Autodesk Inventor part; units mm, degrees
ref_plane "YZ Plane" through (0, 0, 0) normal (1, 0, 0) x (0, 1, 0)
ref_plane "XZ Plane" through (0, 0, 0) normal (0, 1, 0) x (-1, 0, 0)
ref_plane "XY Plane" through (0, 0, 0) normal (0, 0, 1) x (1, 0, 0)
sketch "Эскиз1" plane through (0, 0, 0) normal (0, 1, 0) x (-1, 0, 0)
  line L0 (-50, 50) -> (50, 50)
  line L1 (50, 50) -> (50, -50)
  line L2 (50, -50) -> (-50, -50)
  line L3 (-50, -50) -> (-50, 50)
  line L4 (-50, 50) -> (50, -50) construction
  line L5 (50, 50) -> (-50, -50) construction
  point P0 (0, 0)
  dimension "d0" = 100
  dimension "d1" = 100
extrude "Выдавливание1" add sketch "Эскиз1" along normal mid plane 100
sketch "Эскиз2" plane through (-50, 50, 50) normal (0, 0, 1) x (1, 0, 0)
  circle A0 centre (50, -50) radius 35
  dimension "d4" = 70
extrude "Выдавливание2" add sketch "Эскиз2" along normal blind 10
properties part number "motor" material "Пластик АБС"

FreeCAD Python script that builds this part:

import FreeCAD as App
import Part
import Sketcher
from FreeCAD import Vector
Q = App.Units.Quantity

doc = App.newDocument("Part")
body = doc.addObject("PartDesign::Body", "Body")

# Sketch on XZ plane
sketch1 = body.newObject("Sketcher::SketchObject", "Sketch")
sketch1.AttachmentSupport = (doc.getObject("XZ_Plane"), [""])
sketch1.MapMode = "FlatFace"
sketch1.addGeometry(Part.LineSegment(Vector(-50, 50, 0), Vector(50, 50, 0)), False)
sketch1.addGeometry(Part.LineSegment(Vector(50, 50, 0), Vector(50, -50, 0)), False)
sketch1.addGeometry(Part.LineSegment(Vector(50, -50, 0), Vector(-50, -50, 0)), False)
sketch1.addGeometry(Part.LineSegment(Vector(-50, -50, 0), Vector(-50, 50, 0)), False)
sketch1.addConstraint(Sketcher.Constraint("Coincident", 0, 2, 1, 1))
sketch1.addConstraint(Sketcher.Constraint("Coincident", 1, 2, 2, 1))
sketch1.addConstraint(Sketcher.Constraint("Coincident", 2, 2, 3, 1))
sketch1.addConstraint(Sketcher.Constraint("Coincident", 3, 2, 0, 1))
sketch1.addConstraint(Sketcher.Constraint("Horizontal", 0))
sketch1.addConstraint(Sketcher.Constraint("Vertical", 1))
sketch1.addConstraint(Sketcher.Constraint("Horizontal", 2))
sketch1.addConstraint(Sketcher.Constraint("Vertical", 3))
sketch1.addConstraint(Sketcher.Constraint("Symmetric", 0, 2, 2, 2, -1, 1))
sketch1.addConstraint(Sketcher.Constraint("Equal", 2, 1))
sketch1.addConstraint(Sketcher.Constraint("DistanceX", 0, 1, 0, 2, Q("3.937 in")))
pad1 = body.newObject("PartDesign::Pad", "Pad")
pad1.Profile = sketch1
pad1.Length = Q("3.9370079 in")
pad1.Midplane = True

# Sketch on XY plane
sketch2 = body.newObject("Sketcher::SketchObject", "Sketch001")
sketch2.AttachmentSupport = (doc.getObject("XY_Plane"), [""])
sketch2.MapMode = "FlatFace"
sketch2.AttachmentOffset = App.Placement(Vector(0, 0, 1.9685039 * 25.4), App.Rotation())
sketch2.addGeometry(Part.Circle(Vector(0, 0, 0), Vector(0, 0, 1), 35), False)
sketch2.addConstraint(Sketcher.Constraint("Coincident", 0, 3, -1, 1))
sketch2.addConstraint(Sketcher.Constraint("Diameter", 0, Q("2.7559 in")))
pad2 = body.newObject("PartDesign::Pad", "Pad001")
pad2.Profile = sketch2
pad2.Length = Q("0.3937008 in")

doc.recompute()
